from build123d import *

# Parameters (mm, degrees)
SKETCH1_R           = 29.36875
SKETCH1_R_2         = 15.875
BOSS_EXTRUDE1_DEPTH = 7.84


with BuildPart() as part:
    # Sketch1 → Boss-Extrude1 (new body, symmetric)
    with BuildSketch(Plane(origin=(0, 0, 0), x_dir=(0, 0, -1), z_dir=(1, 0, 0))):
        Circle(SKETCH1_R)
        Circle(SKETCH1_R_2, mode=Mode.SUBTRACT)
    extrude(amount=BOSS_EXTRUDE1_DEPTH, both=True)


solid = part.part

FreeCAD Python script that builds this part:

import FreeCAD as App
import Part
import Sketcher
Q = App.Units.Quantity

doc = App.newDocument("Part")
params = doc.addObject("Spreadsheet::Sheet", "Params")
for row, (alias, value) in enumerate([
    ("sketch1_diameter", "1.25 in"),
    ("sketch1_diameter2", "2.3125 in"),
    ("pad1_length", "15.68 mm"),
], start=1):
    params.set(f"A{row}", alias)
    params.set(f"B{row}", "=" + value)
    params.setAlias(f"B{row}", alias)

body = doc.addObject("PartDesign::Body", "Body")

sketch1 = body.newObject("Sketcher::SketchObject", "Sketch")
sketch1.AttachmentSupport = (doc.getObject("YZ_Plane"), [""])
sketch1.MapMode = "FlatFace"
sketch1.addGeometry([
    Part.Circle(App.Vector(0, 0, 0), App.Vector(0, 0, 1), 29),
    Part.Circle(App.Vector(0, 0, 0), App.Vector(0, 0, 1), 16),
], False)
sketch1.addConstraint([
    Sketcher.Constraint("Coincident", 0, 3, -1, 1),
    Sketcher.Constraint("Coincident", 1, 3, -1, 1),
    Sketcher.Constraint("Diameter", 1, Q("1.25 in")),
    Sketcher.Constraint("Diameter", 0, Q("2.3125 in")),
])
sketch1.setExpression("Constraints[2]", "Params.sketch1_diameter")
sketch1.setExpression("Constraints[3]", "Params.sketch1_diameter2")
pad1 = body.newObject("PartDesign::Pad", "Pad")
pad1.Profile = sketch1
pad1.setExpression("Length", "Params.pad1_length")
pad1.Midplane = True

doc.recompute()
